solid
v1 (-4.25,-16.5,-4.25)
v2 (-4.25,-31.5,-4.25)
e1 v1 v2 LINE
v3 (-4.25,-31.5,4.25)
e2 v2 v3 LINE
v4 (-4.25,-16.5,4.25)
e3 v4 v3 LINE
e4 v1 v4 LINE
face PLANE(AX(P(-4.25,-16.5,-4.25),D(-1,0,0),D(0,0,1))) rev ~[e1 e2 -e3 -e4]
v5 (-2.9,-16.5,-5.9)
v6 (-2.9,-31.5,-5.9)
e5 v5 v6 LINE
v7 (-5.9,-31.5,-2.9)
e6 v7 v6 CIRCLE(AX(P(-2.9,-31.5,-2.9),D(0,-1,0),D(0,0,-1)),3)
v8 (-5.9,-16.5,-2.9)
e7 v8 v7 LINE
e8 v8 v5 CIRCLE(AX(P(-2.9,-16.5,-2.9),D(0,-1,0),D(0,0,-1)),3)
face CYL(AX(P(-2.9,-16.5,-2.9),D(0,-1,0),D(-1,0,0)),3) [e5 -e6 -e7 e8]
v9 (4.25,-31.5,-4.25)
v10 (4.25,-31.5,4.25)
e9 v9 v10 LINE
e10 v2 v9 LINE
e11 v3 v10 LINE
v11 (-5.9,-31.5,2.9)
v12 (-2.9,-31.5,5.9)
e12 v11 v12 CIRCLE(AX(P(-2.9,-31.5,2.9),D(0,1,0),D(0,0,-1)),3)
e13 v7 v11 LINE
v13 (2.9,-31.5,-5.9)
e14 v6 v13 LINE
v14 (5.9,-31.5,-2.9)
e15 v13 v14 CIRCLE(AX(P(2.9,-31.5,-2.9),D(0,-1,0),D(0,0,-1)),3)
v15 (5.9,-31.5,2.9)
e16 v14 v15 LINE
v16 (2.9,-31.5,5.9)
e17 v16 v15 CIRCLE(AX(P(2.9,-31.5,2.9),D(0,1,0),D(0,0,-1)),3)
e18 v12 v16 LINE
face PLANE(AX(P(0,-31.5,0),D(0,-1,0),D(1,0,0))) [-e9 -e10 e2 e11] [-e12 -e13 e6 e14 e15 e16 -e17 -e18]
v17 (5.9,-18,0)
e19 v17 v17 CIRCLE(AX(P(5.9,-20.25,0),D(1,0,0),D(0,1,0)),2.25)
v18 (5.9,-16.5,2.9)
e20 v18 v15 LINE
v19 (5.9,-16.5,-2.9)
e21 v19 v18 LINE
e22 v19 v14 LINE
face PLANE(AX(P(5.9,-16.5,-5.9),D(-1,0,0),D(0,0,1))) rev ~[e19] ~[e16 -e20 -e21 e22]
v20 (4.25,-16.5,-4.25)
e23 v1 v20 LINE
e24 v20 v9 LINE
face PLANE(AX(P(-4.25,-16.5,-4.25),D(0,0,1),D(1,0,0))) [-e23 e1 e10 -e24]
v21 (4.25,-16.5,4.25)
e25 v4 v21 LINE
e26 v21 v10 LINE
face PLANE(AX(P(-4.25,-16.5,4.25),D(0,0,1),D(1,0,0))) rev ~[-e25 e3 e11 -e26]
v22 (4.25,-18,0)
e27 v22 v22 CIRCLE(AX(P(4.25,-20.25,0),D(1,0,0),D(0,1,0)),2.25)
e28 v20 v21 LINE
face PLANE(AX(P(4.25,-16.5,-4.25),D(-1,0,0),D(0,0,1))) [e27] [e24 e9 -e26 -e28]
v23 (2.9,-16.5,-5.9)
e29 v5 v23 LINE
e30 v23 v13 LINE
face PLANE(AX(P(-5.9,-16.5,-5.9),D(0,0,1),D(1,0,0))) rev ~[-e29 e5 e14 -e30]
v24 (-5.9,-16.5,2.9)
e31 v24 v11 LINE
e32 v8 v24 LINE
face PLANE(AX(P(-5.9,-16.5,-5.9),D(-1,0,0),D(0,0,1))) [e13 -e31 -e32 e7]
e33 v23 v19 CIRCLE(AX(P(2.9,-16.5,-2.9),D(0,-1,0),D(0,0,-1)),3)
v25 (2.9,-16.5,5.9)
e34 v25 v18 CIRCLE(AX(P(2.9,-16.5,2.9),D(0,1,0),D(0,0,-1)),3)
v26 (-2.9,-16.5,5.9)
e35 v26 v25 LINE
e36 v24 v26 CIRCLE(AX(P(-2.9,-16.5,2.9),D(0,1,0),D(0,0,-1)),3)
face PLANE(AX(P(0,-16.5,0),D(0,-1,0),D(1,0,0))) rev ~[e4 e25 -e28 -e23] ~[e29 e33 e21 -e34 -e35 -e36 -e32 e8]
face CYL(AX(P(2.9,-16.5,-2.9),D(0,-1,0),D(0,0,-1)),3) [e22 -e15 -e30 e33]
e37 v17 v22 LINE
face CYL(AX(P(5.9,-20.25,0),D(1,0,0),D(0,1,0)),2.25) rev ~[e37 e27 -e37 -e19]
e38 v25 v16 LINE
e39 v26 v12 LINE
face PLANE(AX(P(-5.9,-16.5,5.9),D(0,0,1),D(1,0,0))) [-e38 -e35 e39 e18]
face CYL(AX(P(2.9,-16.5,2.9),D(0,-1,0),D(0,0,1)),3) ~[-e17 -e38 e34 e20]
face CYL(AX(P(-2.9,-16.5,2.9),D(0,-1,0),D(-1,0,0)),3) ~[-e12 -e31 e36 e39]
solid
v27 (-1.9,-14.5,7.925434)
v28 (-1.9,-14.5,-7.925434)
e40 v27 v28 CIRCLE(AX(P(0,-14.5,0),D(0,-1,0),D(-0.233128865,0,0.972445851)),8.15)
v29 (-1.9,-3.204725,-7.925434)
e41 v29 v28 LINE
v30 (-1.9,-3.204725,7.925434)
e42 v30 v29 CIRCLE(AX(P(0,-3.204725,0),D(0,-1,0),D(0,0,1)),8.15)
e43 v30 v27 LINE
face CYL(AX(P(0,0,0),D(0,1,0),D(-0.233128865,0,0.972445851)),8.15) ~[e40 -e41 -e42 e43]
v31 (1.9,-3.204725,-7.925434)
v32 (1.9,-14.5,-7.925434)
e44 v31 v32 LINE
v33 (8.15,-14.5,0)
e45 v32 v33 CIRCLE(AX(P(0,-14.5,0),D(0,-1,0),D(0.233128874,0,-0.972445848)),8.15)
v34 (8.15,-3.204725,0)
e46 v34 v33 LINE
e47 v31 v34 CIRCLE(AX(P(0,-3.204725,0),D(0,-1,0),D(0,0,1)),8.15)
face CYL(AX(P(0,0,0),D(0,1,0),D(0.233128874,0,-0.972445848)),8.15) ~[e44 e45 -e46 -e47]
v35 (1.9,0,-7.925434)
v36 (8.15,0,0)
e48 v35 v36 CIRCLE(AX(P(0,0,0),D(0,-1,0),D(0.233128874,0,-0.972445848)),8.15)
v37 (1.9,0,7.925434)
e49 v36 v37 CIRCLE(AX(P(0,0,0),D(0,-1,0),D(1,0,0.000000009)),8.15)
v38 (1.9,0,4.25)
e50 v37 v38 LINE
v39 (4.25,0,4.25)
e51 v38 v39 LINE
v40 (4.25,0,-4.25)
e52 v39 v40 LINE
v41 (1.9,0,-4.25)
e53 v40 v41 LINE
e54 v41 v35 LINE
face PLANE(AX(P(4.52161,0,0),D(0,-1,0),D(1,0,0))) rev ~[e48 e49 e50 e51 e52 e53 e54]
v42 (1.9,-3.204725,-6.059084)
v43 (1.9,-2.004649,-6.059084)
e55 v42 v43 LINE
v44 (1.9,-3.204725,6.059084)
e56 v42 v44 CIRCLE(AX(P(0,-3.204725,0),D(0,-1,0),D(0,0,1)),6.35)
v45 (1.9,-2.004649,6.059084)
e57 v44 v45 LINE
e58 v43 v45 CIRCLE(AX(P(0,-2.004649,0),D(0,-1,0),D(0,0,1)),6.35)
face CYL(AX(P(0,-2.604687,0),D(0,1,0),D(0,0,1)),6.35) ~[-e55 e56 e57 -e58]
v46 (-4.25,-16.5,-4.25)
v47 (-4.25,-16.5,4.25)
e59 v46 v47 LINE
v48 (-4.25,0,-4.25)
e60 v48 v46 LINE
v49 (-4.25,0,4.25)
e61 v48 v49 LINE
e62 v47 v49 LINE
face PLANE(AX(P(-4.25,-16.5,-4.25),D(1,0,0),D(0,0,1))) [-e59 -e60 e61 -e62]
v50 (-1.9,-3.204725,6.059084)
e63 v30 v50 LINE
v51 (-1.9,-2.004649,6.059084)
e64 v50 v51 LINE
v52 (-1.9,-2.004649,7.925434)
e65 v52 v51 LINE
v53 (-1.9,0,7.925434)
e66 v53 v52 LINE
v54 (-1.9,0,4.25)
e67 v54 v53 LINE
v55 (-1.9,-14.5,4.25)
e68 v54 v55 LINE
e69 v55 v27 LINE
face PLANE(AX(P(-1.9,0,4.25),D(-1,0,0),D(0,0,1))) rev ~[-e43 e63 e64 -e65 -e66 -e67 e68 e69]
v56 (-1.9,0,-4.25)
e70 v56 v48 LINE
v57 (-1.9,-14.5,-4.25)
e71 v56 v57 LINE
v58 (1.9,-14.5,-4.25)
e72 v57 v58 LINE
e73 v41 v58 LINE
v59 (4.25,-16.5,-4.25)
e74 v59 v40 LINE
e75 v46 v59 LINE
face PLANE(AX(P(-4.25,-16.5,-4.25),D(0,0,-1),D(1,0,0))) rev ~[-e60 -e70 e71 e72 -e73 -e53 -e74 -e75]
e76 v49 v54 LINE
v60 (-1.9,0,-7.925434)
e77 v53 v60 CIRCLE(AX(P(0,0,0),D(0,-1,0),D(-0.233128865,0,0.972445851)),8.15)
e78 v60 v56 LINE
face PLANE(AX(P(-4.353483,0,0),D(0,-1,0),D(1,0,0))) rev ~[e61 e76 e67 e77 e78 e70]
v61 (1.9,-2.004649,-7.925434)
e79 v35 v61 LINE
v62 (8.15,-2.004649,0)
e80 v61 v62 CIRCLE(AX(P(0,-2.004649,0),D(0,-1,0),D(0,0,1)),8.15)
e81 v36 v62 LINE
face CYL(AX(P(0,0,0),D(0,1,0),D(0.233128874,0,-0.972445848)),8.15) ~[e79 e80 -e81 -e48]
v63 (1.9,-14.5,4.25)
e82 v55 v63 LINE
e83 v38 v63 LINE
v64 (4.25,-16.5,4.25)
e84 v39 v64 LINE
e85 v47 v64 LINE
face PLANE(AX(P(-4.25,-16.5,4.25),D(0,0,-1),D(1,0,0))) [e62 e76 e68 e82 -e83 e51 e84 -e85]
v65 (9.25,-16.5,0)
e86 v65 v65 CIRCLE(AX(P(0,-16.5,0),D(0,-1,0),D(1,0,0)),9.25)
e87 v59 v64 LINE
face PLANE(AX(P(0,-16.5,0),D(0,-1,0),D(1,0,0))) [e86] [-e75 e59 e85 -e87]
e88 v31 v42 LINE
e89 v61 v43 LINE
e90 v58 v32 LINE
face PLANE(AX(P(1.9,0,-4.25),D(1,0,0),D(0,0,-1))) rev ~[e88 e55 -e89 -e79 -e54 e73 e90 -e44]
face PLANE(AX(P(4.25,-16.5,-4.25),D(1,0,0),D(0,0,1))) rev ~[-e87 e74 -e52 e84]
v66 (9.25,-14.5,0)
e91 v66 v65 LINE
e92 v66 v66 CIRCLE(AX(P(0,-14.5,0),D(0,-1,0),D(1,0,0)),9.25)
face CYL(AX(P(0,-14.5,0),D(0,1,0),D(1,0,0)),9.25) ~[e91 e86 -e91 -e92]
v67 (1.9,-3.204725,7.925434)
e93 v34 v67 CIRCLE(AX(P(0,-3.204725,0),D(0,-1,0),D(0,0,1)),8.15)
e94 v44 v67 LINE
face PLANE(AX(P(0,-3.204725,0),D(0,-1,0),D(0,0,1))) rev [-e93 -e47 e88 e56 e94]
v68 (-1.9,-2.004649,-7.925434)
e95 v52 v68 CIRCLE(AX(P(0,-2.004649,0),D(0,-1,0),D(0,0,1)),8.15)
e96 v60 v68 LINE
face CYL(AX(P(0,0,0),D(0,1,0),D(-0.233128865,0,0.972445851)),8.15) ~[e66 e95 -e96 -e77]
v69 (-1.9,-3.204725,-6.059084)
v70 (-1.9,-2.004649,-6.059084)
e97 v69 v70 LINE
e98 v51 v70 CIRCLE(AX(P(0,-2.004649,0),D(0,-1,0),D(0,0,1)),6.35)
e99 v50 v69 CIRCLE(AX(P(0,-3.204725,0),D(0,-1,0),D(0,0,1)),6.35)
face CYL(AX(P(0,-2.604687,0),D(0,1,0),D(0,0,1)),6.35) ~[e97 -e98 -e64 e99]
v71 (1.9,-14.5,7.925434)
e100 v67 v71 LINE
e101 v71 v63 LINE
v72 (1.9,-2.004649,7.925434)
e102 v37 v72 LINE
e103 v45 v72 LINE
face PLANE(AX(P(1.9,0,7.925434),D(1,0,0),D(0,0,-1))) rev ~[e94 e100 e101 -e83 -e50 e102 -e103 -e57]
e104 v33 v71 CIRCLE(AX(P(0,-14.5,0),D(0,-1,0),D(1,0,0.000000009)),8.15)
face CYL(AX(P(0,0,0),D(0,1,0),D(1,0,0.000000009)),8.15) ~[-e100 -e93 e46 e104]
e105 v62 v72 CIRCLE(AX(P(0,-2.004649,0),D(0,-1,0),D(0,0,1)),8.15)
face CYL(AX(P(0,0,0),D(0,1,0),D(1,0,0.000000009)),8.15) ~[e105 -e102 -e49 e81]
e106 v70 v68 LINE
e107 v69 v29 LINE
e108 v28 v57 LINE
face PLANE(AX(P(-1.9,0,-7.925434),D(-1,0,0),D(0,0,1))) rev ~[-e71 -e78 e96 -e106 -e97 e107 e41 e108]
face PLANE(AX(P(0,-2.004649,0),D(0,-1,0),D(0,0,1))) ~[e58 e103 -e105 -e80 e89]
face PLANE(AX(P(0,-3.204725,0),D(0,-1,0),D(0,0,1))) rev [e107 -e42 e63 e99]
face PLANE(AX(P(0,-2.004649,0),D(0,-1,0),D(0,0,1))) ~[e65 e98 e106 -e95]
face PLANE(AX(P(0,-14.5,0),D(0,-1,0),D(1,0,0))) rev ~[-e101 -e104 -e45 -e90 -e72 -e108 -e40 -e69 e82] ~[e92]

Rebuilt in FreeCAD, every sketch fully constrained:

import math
import FreeCAD as App
import Part
import Sketcher

V = App.Vector


def edges_at(feature, points):
    """Names of the edges that pass closest to the given points."""
    edges = feature.Shape.Edges
    near = lambda p: min(range(len(edges)), key=lambda i: edges[i].distToShape(Part.Vertex(*p))[0])
    return sorted({f"Edge{near(p) + 1}" for p in points})

doc = App.newDocument("Part")
body = doc.addObject("PartDesign::Body", "Body")
body.AllowCompound = True

# Sketch on XZ plane
sketch1 = body.newObject("Sketcher::SketchObject", "Sketch")
sketch1.AttachmentSupport = (doc.getObject("XZ_Plane"), [""])
sketch1.MapMode = "FlatFace"
sketch1.addGeometry(Part.ArcOfCircle(Part.Circle(V(0, 0, 0), V(0, 0, 1), 8.2), math.radians(-77), math.radians(0)), False)
sketch1.addGeometry(Part.ArcOfCircle(Part.Circle(V(0, 0, 0), V(0, 0, 1), 8.2), math.radians(0), math.radians(77)), False)
sketch1.addGeometry(Part.LineSegment(V(1.9, 7.9, 0), V(1.9, 4.2, 0)), False)
sketch1.addGeometry(Part.LineSegment(V(1.9, 4.2, 0), V(4.2, 4.2, 0)), False)
sketch1.addGeometry(Part.LineSegment(V(4.2, 4.2, 0), V(4.2, -4.2, 0)), False)
sketch1.addGeometry(Part.LineSegment(V(4.2, -4.2, 0), V(1.9, -4.2, 0)), False)
sketch1.addGeometry(Part.LineSegment(V(1.9, -4.2, 0), V(1.9, -7.9, 0)), False)
sketch1.addGeometry(Part.LineSegment(V(-1.9, 4.2, 0), V(-1.9, 7.9, 0)), False)
sketch1.addGeometry(Part.ArcOfCircle(Part.Circle(V(0, 0, 0), V(0, 0, 1), 8.2), math.radians(103), math.radians(257)), False)
sketch1.addGeometry(Part.LineSegment(V(-1.9, -7.9, 0), V(-1.9, -4.2, 0)), False)
sketch1.addGeometry(Part.LineSegment(V(-1.9, -4.2, 0), V(-4.2, -4.2, 0)), False)
sketch1.addGeometry(Part.LineSegment(V(-4.2, -4.2, 0), V(-4.2, 4.2, 0)), False)
sketch1.addGeometry(Part.LineSegment(V(-4.2, 4.2, 0), V(-1.9, 4.2, 0)), False)
sketch1.addConstraint(Sketcher.Constraint("Tangent", 0, 2, 1, 1))
sketch1.addConstraint(Sketcher.Constraint("Coincident", 1, 2, 2, 1))
sketch1.addConstraint(Sketcher.Constraint("Coincident", 2, 2, 3, 1))
sketch1.addConstraint(Sketcher.Constraint("Coincident", 3, 2, 4, 1))
sketch1.addConstraint(Sketcher.Constraint("Coincident", 4, 2, 5, 1))
sketch1.addConstraint(Sketcher.Constraint("Coincident", 5, 2, 6, 1))
sketch1.addConstraint(Sketcher.Constraint("Coincident", 6, 2, 0, 1))
sketch1.addConstraint(Sketcher.Constraint("Coincident", 7, 2, 8, 1))
sketch1.addConstraint(Sketcher.Constraint("Coincident", 8, 2, 9, 1))
sketch1.addConstraint(Sketcher.Constraint("Coincident", 9, 2, 10, 1))
sketch1.addConstraint(Sketcher.Constraint("Coincident", 10, 2, 11, 1))
sketch1.addConstraint(Sketcher.Constraint("Coincident", 11, 2, 12, 1))
sketch1.addConstraint(Sketcher.Constraint("Coincident", 12, 2, 7, 1))
sketch1.addConstraint(Sketcher.Constraint("Vertical", 2))
sketch1.addConstraint(Sketcher.Constraint("Horizontal", 3))
sketch1.addConstraint(Sketcher.Constraint("Vertical", 4))
sketch1.addConstraint(Sketcher.Constraint("Horizontal", 5))
sketch1.addConstraint(Sketcher.Constraint("Vertical", 6))
sketch1.addConstraint(Sketcher.Constraint("Vertical", 7))
sketch1.addConstraint(Sketcher.Constraint("Vertical", 9))
sketch1.addConstraint(Sketcher.Constraint("Horizontal", 10))
sketch1.addConstraint(Sketcher.Constraint("Vertical", 11))
sketch1.addConstraint(Sketcher.Constraint("Horizontal", 12))
sketch1.addConstraint(Sketcher.Constraint("Coincident", 0, 3, -1, 1))
sketch1.addConstraint(Sketcher.Constraint("Coincident", 8, 3, -1, 1))
sketch1.addConstraint(Sketcher.Constraint("Equal", 0, 1))
sketch1.addConstraint(Sketcher.Constraint("Equal", 1, 8))
sketch1.addConstraint(Sketcher.Constraint("Symmetric", 2, 2, 9, 2, -1, 1))
sketch1.addConstraint(Sketcher.Constraint("Symmetric", 4, 2, 11, 2, -1, 1))
sketch1.addConstraint(Sketcher.Constraint("Symmetric", 5, 2, 9, 2, -2))
sketch1.addConstraint(Sketcher.Constraint("PointOnObject", 0, 2, -1))
sketch1.addConstraint(Sketcher.Constraint("Horizontal", 1, 2, 7, 2))
sketch1.addConstraint(Sketcher.Constraint("Radius", 0, 8.15))
sketch1.addConstraint(Sketcher.Constraint("DistanceY", 4, 2, 4, 1, 8.5))
sketch1.addConstraint(Sketcher.Constraint("DistanceX", 3, 1, 3, 2, 2.35))
sketch1.addConstraint(Sketcher.Constraint("DistanceX", -1, 1, 1, 2, 1.9))
pad1 = body.newObject("PartDesign::Pad", "Pad")
pad1.Profile = sketch1
pad1.Length = 14.5

# Sketch on YZ plane
sketch2 = body.newObject("Sketcher::SketchObject", "Sketch001")
sketch2.AttachmentSupport = (doc.getObject("YZ_Plane"), [""])
sketch2.MapMode = "FlatFace"
sketch2.addGeometry(Part.LineSegment(V(-3.2, 8.2, 0), V(-3.2, 6.3, 0)), False)
sketch2.addGeometry(Part.LineSegment(V(-3.2, 6.3, 0), V(-2, 6.3, 0)), False)
sketch2.addGeometry(Part.LineSegment(V(-2, 6.3, 0), V(-2, 8.2, 0)), False)
sketch2.addGeometry(Part.LineSegment(V(-2, 8.2, 0), V(-3.2, 8.2, 0)), False)
sketch2.addConstraint(Sketcher.Constraint("Coincident", 0, 2, 1, 1))
sketch2.addConstraint(Sketcher.Constraint("Coincident", 1, 2, 2, 1))
sketch2.addConstraint(Sketcher.Constraint("Coincident", 2, 2, 3, 1))
sketch2.addConstraint(Sketcher.Constraint("Coincident", 3, 2, 0, 1))
sketch2.addConstraint(Sketcher.Constraint("Vertical", 0))
sketch2.addConstraint(Sketcher.Constraint("Horizontal", 1))
sketch2.addConstraint(Sketcher.Constraint("Vertical", 2))
sketch2.addConstraint(Sketcher.Constraint("Horizontal", 3))
sketch2.addConstraint(Sketcher.Constraint("DistanceY", 0, 2, 0, 1, 1.8))
sketch2.addConstraint(Sketcher.Constraint("DistanceY", -1, 1, 0, 2, 6.35))
sketch2.addConstraint(Sketcher.Constraint("DistanceX", 1, 1, 1, 2, 1.200076))
sketch2.addConstraint(Sketcher.Constraint("DistanceX", 1, 2, -1, 1, 2.004649))
groove = body.newObject("PartDesign::Groove", "Groove")
groove.Profile = sketch2
groove.ReferenceAxis = (sketch2, ["H_Axis"])
groove.Angle = 360

# Sketch on XZ plane
sketch3 = body.newObject("Sketcher::SketchObject", "Sketch002")
sketch3.AttachmentSupport = (doc.getObject("XZ_Plane"), [""])
sketch3.MapMode = "FlatFace"
sketch3.AttachmentOffset = App.Placement(V(0, 0, 14.5), App.Rotation())
sketch3.addGeometry(Part.Circle(V(0, 0, 0), V(0, 0, 1), 9), False)
sketch3.addConstraint(Sketcher.Constraint("Coincident", 0, 3, -1, 1))
sketch3.addConstraint(Sketcher.Constraint("Diameter", 0, 18.5))
pad2 = body.newObject("PartDesign::Pad", "Pad001")
pad2.Profile = sketch3
pad2.Length = 2

# Sketch on XZ plane
sketch4 = body.newObject("Sketcher::SketchObject", "Sketch003")
sketch4.AttachmentSupport = (doc.getObject("XZ_Plane"), [""])
sketch4.MapMode = "FlatFace"
sketch4.AttachmentOffset = App.Placement(V(0, 0, 16.5), App.Rotation())
sketch4.addGeometry(Part.LineSegment(V(-4, 4, 0), V(-4, -4, 0)), False)
sketch4.addGeometry(Part.LineSegment(V(-4, -4, 0), V(4, -4, 0)), False)
sketch4.addGeometry(Part.LineSegment(V(4, -4, 0), V(4, 4, 0)), False)
sketch4.addGeometry(Part.LineSegment(V(4, 4, 0), V(-4, 4, 0)), False)
sketch4.addConstraint(Sketcher.Constraint("Coincident", 0, 2, 1, 1))
sketch4.addConstraint(Sketcher.Constraint("Coincident", 1, 2, 2, 1))
sketch4.addConstraint(Sketcher.Constraint("Coincident", 2, 2, 3, 1))
sketch4.addConstraint(Sketcher.Constraint("Coincident", 3, 2, 0, 1))
sketch4.addConstraint(Sketcher.Constraint("Vertical", 0))
sketch4.addConstraint(Sketcher.Constraint("Horizontal", 1))
sketch4.addConstraint(Sketcher.Constraint("Vertical", 2))
sketch4.addConstraint(Sketcher.Constraint("Horizontal", 3))
sketch4.addConstraint(Sketcher.Constraint("Symmetric", 0, 2, 2, 2, -1, 1))
sketch4.addConstraint(Sketcher.Constraint("Equal", 3, 0))
sketch4.addConstraint(Sketcher.Constraint("DistanceX", 1, 1, 1, 2, 8.5))
pocket1 = body.newObject("PartDesign::Pocket", "Pocket")
pocket1.Profile = sketch4
pocket1.Type = "ThroughAll"
body2 = doc.addObject("PartDesign::Body", "Body001")

# Sketch on XZ plane
sketch5 = body2.newObject("Sketcher::SketchObject", "Sketch004")
sketch5.AttachmentSupport = (doc.getObject("XZ_Plane001"), [""])
sketch5.MapMode = "FlatFace"
sketch5.AttachmentOffset = App.Placement(V(0, 0, 16.5), App.Rotation())
sketch5.addGeometry(Part.LineSegment(V(-6, 6, 0), V(-6, -6, 0)), False)
sketch5.addGeometry(Part.LineSegment(V(-6, -6, 0), V(6, -6, 0)), False)
sketch5.addGeometry(Part.LineSegment(V(6, -6, 0), V(6, 6, 0)), False)
sketch5.addGeometry(Part.LineSegment(V(6, 6, 0), V(-6, 6, 0)), False)
sketch5.addGeometry(Part.LineSegment(V(4, -4, 0), V(-4, -4, 0)), False)
sketch5.addGeometry(Part.LineSegment(V(-4, -4, 0), V(-4, 4, 0)), False)
sketch5.addGeometry(Part.LineSegment(V(-4, 4, 0), V(4, 4, 0)), False)
sketch5.addGeometry(Part.LineSegment(V(4, 4, 0), V(4, -4, 0)), False)
sketch5.addConstraint(Sketcher.Constraint("Coincident", 0, 2, 1, 1))
sketch5.addConstraint(Sketcher.Constraint("Coincident", 1, 2, 2, 1))
sketch5.addConstraint(Sketcher.Constraint("Coincident", 2, 2, 3, 1))
sketch5.addConstraint(Sketcher.Constraint("Coincident", 3, 2, 0, 1))
sketch5.addConstraint(Sketcher.Constraint("Coincident", 4, 2, 5, 1))
sketch5.addConstraint(Sketcher.Constraint("Coincident", 5, 2, 6, 1))
sketch5.addConstraint(Sketcher.Constraint("Coincident", 6, 2, 7, 1))
sketch5.addConstraint(Sketcher.Constraint("Coincident", 7, 2, 4, 1))
sketch5.addConstraint(Sketcher.Constraint("Vertical", 0))
sketch5.addConstraint(Sketcher.Constraint("Horizontal", 1))
sketch5.addConstraint(Sketcher.Constraint("Vertical", 2))
sketch5.addConstraint(Sketcher.Constraint("Horizontal", 3))
sketch5.addConstraint(Sketcher.Constraint("Horizontal", 4))
sketch5.addConstraint(Sketcher.Constraint("Vertical", 5))
sketch5.addConstraint(Sketcher.Constraint("Horizontal", 6))
sketch5.addConstraint(Sketcher.Constraint("Vertical", 7))
sketch5.addConstraint(Sketcher.Constraint("Symmetric", 0, 2, 2, 2, -1, 1))
sketch5.addConstraint(Sketcher.Constraint("Symmetric", 4, 2, 6, 2, -1, 1))
sketch5.addConstraint(Sketcher.Constraint("Equal", 3, 0))
sketch5.addConstraint(Sketcher.Constraint("Equal", 6, 5))
sketch5.addConstraint(Sketcher.Constraint("DistanceX", 1, 1, 1, 2, 11.8))
sketch5.addConstraint(Sketcher.Constraint("DistanceX", 4, 2, 4, 1, 8.5))
pad3 = body2.newObject("PartDesign::Pad", "Pad002")
pad3.Profile = sketch5
pad3.Length = 15

# Sketch on YZ plane
sketch6 = body2.newObject("Sketcher::SketchObject", "Sketch005")
sketch6.AttachmentSupport = (doc.getObject("YZ_Plane001"), [""])
sketch6.MapMode = "FlatFace"
sketch6.AttachmentOffset = App.Placement(V(0, 0, 5.9), App.Rotation())
sketch6.addGeometry(Part.Circle(V(-20.2, 0, 0), V(0, 0, 1), 2.2), False)
sketch6.addConstraint(Sketcher.Constraint("PointOnObject", 0, 3, -1))
sketch6.addConstraint(Sketcher.Constraint("Diameter", 0, 4.5))
sketch6.addConstraint(Sketcher.Constraint("DistanceX", 0, 3, -1, 1, 20.25))
pocket2 = body2.newObject("PartDesign::Pocket", "Pocket001")
pocket2.Profile = sketch6
pocket2.Length = 1.65
doc.recompute()

fillet = body2.newObject("PartDesign::Fillet", "Fillet")
fillet.Base = (pocket2, edges_at(pocket2, [
    (-5.9, -24, 5.9),
    (-5.9, -24, -5.9),
    (5.9, -24, 5.9),
    (5.9, -24, -5.9),
]))
fillet.Radius = 3

doc.recompute()
